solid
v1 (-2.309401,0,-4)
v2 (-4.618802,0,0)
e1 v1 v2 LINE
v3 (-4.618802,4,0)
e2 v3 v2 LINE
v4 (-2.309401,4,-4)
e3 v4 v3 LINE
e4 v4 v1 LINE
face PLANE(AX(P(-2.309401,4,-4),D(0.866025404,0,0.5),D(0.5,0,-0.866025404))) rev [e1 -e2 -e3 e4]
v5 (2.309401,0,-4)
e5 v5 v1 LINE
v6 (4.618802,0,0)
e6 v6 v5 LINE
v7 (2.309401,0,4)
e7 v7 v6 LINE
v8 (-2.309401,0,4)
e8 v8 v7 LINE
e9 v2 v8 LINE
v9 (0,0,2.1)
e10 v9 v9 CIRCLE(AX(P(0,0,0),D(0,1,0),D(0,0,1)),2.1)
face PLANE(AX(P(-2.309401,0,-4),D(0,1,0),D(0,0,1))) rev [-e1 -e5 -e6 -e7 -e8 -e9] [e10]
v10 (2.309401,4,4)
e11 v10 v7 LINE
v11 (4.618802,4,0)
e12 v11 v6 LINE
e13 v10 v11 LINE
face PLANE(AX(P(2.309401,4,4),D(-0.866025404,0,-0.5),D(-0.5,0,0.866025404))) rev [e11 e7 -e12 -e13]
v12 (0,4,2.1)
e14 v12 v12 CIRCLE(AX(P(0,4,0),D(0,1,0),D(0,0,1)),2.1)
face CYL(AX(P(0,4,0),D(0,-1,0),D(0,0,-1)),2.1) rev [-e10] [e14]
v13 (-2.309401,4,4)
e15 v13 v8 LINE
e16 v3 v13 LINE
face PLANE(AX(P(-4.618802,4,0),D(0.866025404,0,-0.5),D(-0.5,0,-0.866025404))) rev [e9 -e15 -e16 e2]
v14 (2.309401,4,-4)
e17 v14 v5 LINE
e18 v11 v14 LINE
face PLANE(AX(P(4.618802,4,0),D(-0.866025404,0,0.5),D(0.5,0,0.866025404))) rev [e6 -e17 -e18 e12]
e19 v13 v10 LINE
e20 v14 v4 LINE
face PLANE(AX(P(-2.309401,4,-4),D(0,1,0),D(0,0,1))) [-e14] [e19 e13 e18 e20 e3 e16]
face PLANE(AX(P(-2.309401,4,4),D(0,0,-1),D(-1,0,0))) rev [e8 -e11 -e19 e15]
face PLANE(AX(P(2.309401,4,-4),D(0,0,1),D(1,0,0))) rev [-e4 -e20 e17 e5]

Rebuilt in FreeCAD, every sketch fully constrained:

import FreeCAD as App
import Part
import Sketcher
Q = App.Units.Quantity


def add_polygon(sketch, points):
    """Adds a closed chain of lines whose ends are joined by coincident constraints."""
    first, n = sketch.GeometryCount, len(points)
    for a, b in zip(points, points[1:] + points[:1]):
        sketch.addGeometry(Part.LineSegment(App.Vector(*a, 0), App.Vector(*b, 0)), False)
    for i in range(n):
        sketch.addConstraint(Sketcher.Constraint("Coincident", first + i, 2, first + (i + 1) % n, 1))

doc = App.newDocument("Part")
body = doc.addObject("PartDesign::Body", "Body")

# Sketch on XZ plane
sketch1 = body.newObject("Sketcher::SketchObject", "Sketch")
sketch1.AttachmentSupport = (doc.getObject("XZ_Plane"), [""])
sketch1.MapMode = "FlatFace"
add_polygon(sketch1, [(-2.309401, -4), (-4.618802, 0), (-2.309401, 4), (2.309401, 4), (4.618802, 0), (2.309401, -4)])  # lines 0-5
sketch1.addGeometry(Part.Circle(App.Vector(0, 0, 0), App.Vector(0, 0, 1), 2.1), False)  # 6
sketch1.addConstraint(Sketcher.Constraint("Horizontal", 2))
sketch1.addConstraint(Sketcher.Constraint("Horizontal", 5))
sketch1.addConstraint(Sketcher.Constraint("Coincident", 6, 3, -1, 1))
sketch1.addConstraint(Sketcher.Constraint("Symmetric", 0, 2, 3, 2, -1, 1))
sketch1.addConstraint(Sketcher.Constraint("Symmetric", 1, 2, 4, 2, -1, 1))
sketch1.addConstraint(Sketcher.Constraint("PointOnObject", 0, 2, -1))
sketch1.addConstraint(Sketcher.Constraint("Parallel", 0, 3))
sketch1.addConstraint(Sketcher.Constraint("Vertical", 2, 2, 4, 2))
sketch1.addConstraint(Sketcher.Constraint("Diameter", 6, 4.2))
sketch1.addConstraint(Sketcher.Constraint("Angle", 0, Q("120 deg")))
sketch1.addConstraint(Sketcher.Constraint("DistanceY", -1, 1, 1, 2, 4.0))
sketch1.addConstraint(Sketcher.Constraint("DistanceX", 1, 2, -1, 1, 2.309401))
pad1 = body.newObject("PartDesign::Pad", "Pad")
pad1.Profile = sketch1
pad1.Length = 4
pad1.Reversed = True

doc.recompute()
